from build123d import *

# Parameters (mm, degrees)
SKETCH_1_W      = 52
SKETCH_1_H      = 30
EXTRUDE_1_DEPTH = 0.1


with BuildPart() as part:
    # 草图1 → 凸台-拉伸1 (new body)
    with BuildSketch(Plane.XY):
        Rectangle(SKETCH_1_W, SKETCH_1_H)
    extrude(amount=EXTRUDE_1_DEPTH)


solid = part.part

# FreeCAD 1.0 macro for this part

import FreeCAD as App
import Part
import Sketcher

V = App.Vector


def add_polygon(sketch, points):
    """Adds a closed chain of lines whose ends are joined by coincident constraints."""
    first, n = sketch.GeometryCount, len(points)
    for a, b in zip(points, points[1:] + points[:1]):
        sketch.addGeometry(Part.LineSegment(App.Vector(*a, 0), App.Vector(*b, 0)), False)
    for i in range(n):
        sketch.addConstraint(Sketcher.Constraint("Coincident", first + i, 2, first + (i + 1) % n, 1))

doc = App.newDocument("Part")
body = doc.addObject("PartDesign::Body", "Body")

# Sketch on XY plane
sketch1 = body.newObject("Sketcher::SketchObject", "Sketch")
sketch1.AttachmentSupport = (doc.getObject("XY_Plane"), [""])
sketch1.MapMode = "FlatFace"
add_polygon(sketch1, [(-26, 15), (-26, -15), (26, -15), (26, 15)])  # lines 0-3
sketch1.addConstraint([
    Sketcher.Constraint("Vertical", 0),
    Sketcher.Constraint("Horizontal", 1),
    Sketcher.Constraint("Vertical", 2),
    Sketcher.Constraint("Horizontal", 3),
    Sketcher.Constraint("Symmetric", 0, 2, 2, 2, -1, 1),
    Sketcher.Constraint("DistanceX", 1, 1, 1, 2, 52.0),
    Sketcher.Constraint("DistanceY", 0, 2, 0, 1, 30.0),
])
pad1 = body.newObject("PartDesign::Pad", "Pad")
pad1.Profile = sketch1
pad1.Length = 0.1

doc.recompute()
